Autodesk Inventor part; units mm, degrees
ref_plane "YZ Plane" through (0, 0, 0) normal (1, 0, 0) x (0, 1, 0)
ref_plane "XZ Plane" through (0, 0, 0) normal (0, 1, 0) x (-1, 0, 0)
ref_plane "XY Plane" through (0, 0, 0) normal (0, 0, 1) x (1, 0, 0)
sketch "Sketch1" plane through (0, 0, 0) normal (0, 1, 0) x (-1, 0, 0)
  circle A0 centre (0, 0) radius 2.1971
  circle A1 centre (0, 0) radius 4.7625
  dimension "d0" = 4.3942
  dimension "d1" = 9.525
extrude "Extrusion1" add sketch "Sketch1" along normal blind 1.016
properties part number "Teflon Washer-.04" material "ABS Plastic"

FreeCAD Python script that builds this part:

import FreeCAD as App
import Part
import Sketcher
Q = App.Units.Quantity

doc = App.newDocument("Part")
body = doc.addObject("PartDesign::Body", "Body")

# Sketch on XZ plane
sketch1 = body.newObject("Sketcher::SketchObject", "Sketch")
sketch1.AttachmentSupport = (doc.getObject("XZ_Plane"), [""])
sketch1.MapMode = "FlatFace"
sketch1.addGeometry([
    Part.Circle(App.Vector(0, 0, 0), App.Vector(0, 0, 1), 4.7625),
    Part.Circle(App.Vector(0, 0, 0), App.Vector(0, 0, 1), 2.1971),
], False)
sketch1.addConstraint([
    Sketcher.Constraint("Coincident", 0, 3, -1, 1),
    Sketcher.Constraint("Coincident", 1, 3, -1, 1),
    Sketcher.Constraint("Diameter", 0, Q("0.375 in")),
    Sketcher.Constraint("Diameter", 1, Q("0.173 in")),
])
pad1 = body.newObject("PartDesign::Pad", "Pad")
pad1.Profile = sketch1
pad1.Length = Q("0.04 in")
pad1.Reversed = True

doc.recompute()
